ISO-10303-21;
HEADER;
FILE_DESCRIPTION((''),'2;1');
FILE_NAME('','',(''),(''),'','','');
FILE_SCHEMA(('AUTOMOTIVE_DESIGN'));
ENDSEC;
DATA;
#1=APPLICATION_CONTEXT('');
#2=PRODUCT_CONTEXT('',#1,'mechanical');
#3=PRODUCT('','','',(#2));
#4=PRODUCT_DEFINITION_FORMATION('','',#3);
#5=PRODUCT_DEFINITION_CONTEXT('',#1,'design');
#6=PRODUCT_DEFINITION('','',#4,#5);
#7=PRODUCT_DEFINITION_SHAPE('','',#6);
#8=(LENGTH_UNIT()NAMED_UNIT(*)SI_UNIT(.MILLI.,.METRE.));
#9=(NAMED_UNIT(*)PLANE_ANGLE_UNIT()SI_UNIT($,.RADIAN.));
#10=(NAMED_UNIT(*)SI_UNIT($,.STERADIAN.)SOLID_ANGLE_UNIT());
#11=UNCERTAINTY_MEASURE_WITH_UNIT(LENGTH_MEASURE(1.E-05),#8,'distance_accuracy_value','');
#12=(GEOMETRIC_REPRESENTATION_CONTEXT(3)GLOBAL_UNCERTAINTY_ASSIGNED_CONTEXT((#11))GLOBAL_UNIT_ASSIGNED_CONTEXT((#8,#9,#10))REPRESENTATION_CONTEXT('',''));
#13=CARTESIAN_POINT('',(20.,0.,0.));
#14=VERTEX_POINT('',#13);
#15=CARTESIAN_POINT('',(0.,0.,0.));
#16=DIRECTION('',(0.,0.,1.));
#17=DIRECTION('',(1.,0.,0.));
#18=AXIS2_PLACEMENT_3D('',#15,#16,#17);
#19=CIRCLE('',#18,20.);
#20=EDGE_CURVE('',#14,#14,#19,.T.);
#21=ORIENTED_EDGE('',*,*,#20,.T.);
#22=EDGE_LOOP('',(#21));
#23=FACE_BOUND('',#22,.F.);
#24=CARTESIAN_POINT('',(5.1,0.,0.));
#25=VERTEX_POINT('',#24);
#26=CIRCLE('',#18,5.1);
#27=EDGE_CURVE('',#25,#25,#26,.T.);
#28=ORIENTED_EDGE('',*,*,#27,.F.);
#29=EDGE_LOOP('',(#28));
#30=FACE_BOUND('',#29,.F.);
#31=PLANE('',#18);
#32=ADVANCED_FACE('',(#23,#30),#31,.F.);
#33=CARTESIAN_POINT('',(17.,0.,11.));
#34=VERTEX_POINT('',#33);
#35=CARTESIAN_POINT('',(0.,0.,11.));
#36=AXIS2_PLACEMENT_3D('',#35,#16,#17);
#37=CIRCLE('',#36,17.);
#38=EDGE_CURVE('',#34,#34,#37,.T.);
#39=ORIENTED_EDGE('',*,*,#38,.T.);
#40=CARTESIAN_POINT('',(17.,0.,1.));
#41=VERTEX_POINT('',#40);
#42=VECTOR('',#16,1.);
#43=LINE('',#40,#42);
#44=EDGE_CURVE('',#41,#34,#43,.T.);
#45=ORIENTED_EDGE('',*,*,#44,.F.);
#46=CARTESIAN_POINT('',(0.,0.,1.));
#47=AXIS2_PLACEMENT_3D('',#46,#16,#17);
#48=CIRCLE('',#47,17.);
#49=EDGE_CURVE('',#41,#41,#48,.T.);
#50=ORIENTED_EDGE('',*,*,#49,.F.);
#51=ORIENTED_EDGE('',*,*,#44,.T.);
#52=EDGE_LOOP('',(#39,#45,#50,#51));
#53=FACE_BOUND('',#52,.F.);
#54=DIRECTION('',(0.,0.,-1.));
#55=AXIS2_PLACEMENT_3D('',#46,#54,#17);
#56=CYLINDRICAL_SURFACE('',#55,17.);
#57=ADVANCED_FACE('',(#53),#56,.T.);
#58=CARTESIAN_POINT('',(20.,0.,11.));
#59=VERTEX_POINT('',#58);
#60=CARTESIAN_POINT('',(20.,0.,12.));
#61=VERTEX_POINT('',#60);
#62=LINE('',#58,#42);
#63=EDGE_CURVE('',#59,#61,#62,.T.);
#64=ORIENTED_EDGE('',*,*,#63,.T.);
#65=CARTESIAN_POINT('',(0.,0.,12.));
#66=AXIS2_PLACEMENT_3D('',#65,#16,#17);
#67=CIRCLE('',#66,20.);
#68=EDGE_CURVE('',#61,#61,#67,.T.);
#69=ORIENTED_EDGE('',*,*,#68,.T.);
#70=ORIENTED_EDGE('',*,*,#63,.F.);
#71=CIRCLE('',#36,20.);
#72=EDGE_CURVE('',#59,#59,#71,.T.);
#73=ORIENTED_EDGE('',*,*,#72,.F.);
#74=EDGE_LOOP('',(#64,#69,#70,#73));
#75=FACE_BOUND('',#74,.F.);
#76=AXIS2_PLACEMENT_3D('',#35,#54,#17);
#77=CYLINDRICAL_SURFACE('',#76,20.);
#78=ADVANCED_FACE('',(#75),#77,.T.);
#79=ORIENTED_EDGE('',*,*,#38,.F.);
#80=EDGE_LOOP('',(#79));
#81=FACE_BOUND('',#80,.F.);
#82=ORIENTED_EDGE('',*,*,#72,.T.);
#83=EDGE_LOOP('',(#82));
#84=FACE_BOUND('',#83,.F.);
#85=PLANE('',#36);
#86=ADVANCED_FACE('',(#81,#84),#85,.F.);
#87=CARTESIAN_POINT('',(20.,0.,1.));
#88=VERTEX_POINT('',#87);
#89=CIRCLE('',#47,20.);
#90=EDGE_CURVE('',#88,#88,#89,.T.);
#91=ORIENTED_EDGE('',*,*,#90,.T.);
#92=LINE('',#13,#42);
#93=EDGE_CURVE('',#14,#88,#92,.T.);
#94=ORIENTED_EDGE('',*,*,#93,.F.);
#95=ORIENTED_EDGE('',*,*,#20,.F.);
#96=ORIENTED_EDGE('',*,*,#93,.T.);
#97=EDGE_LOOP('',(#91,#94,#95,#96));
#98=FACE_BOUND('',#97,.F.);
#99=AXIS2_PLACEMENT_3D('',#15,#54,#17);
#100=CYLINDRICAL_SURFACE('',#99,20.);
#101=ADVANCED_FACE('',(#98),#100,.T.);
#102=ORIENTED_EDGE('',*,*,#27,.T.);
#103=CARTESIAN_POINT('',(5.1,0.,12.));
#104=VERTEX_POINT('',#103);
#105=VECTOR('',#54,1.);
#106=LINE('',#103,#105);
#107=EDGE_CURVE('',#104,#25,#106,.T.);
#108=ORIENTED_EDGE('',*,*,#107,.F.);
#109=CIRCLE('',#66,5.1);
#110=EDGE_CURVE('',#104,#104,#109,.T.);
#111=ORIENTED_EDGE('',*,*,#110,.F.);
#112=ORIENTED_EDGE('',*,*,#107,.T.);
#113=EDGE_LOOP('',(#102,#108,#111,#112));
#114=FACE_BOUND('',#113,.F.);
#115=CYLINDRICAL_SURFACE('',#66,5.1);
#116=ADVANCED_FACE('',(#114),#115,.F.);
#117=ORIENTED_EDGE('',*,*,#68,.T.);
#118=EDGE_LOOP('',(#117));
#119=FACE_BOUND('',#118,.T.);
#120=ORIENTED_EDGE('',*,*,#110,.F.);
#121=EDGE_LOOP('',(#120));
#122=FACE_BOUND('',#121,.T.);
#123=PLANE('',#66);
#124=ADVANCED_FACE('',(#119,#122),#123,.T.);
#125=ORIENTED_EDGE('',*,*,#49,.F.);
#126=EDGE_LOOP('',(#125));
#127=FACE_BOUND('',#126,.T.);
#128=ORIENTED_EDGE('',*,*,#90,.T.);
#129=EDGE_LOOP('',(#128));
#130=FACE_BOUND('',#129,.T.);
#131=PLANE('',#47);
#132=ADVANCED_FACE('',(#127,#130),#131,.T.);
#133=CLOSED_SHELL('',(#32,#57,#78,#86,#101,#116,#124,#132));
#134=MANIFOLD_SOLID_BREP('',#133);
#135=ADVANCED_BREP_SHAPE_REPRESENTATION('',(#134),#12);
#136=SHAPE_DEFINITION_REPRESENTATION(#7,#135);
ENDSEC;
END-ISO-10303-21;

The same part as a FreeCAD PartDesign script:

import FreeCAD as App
import Part
import Sketcher
Q = App.Units.Quantity

doc = App.newDocument("Part")
params = doc.addObject("Spreadsheet::Sheet", "Params")
for row, (alias, value) in enumerate([
    ("sketch1_diameter", "40 mm"),
    ("pad1_length", "1 mm"),
    ("sketch2_diameter", "34 mm"),
    ("pad2_length", "10 mm"),
    ("sketch3_diameter", "40 mm"),
    ("pad3_length", "1 mm"),
    ("sketch4_diameter", "10.2 mm"),
], start=1):
    params.set(f"A{row}", alias)
    params.set(f"B{row}", "=" + value)
    params.setAlias(f"B{row}", alias)

body = doc.addObject("PartDesign::Body", "Body")

sketch1 = body.newObject("Sketcher::SketchObject", "Sketch")
sketch1.AttachmentSupport = (doc.getObject("XY_Plane"), [""])
sketch1.MapMode = "FlatFace"
sketch1.addGeometry(Part.Circle(App.Vector(0, 0, 0), App.Vector(0, 0, 1), 20), False)
sketch1.addConstraint([
    Sketcher.Constraint("Coincident", 0, 3, -1, 1),
    Sketcher.Constraint("Diameter", 0, Q("40 mm")),
])
sketch1.setExpression("Constraints[1]", "Params.sketch1_diameter")
pad1 = body.newObject("PartDesign::Pad", "Pad")
pad1.Profile = sketch1
pad1.setExpression("Length", "Params.pad1_length")

sketch2 = body.newObject("Sketcher::SketchObject", "Sketch001")
sketch2.AttachmentSupport = (doc.getObject("XY_Plane"), [""])
sketch2.MapMode = "FlatFace"
sketch2.AttachmentOffset = App.Placement(App.Vector(0, 0, 1), App.Rotation())
sketch2.addGeometry(Part.Circle(App.Vector(0, 0, 0), App.Vector(0, 0, 1), 17), False)
sketch2.addConstraint([
    Sketcher.Constraint("Coincident", 0, 3, -1, 1),
    Sketcher.Constraint("Diameter", 0, Q("34 mm")),
])
sketch2.setExpression("Constraints[1]", "Params.sketch2_diameter")
pad2 = body.newObject("PartDesign::Pad", "Pad001")
pad2.Profile = sketch2
pad2.setExpression("Length", "Params.pad2_length")

sketch3 = body.newObject("Sketcher::SketchObject", "Sketch002")
sketch3.AttachmentSupport = (doc.getObject("XY_Plane"), [""])
sketch3.MapMode = "FlatFace"
sketch3.AttachmentOffset = App.Placement(App.Vector(0, 0, 11), App.Rotation())
sketch3.addGeometry(Part.Circle(App.Vector(0, 0, 0), App.Vector(0, 0, 1), 20), False)
sketch3.addConstraint([
    Sketcher.Constraint("Coincident", 0, 3, -1, 1),
    Sketcher.Constraint("Diameter", 0, Q("40 mm")),
])
sketch3.setExpression("Constraints[1]", "Params.sketch3_diameter")
pad3 = body.newObject("PartDesign::Pad", "Pad002")
pad3.Profile = sketch3
pad3.setExpression("Length", "Params.pad3_length")

sketch4 = body.newObject("Sketcher::SketchObject", "Sketch003")
sketch4.AttachmentSupport = (doc.getObject("XY_Plane"), [""])
sketch4.MapMode = "FlatFace"
sketch4.AttachmentOffset = App.Placement(App.Vector(0, 0, 12), App.Rotation())
sketch4.addGeometry(Part.Circle(App.Vector(0, 0, 0), App.Vector(0, 0, 1), 5), False)
sketch4.addConstraint([
    Sketcher.Constraint("Coincident", 0, 3, -1, 1),
    Sketcher.Constraint("Diameter", 0, Q("10.2 mm")),
])
sketch4.setExpression("Constraints[1]", "Params.sketch4_diameter")
pocket1 = body.newObject("PartDesign::Pocket", "Pocket")
pocket1.Profile = sketch4
pocket1.Type = "ThroughAll"

doc.recompute()
